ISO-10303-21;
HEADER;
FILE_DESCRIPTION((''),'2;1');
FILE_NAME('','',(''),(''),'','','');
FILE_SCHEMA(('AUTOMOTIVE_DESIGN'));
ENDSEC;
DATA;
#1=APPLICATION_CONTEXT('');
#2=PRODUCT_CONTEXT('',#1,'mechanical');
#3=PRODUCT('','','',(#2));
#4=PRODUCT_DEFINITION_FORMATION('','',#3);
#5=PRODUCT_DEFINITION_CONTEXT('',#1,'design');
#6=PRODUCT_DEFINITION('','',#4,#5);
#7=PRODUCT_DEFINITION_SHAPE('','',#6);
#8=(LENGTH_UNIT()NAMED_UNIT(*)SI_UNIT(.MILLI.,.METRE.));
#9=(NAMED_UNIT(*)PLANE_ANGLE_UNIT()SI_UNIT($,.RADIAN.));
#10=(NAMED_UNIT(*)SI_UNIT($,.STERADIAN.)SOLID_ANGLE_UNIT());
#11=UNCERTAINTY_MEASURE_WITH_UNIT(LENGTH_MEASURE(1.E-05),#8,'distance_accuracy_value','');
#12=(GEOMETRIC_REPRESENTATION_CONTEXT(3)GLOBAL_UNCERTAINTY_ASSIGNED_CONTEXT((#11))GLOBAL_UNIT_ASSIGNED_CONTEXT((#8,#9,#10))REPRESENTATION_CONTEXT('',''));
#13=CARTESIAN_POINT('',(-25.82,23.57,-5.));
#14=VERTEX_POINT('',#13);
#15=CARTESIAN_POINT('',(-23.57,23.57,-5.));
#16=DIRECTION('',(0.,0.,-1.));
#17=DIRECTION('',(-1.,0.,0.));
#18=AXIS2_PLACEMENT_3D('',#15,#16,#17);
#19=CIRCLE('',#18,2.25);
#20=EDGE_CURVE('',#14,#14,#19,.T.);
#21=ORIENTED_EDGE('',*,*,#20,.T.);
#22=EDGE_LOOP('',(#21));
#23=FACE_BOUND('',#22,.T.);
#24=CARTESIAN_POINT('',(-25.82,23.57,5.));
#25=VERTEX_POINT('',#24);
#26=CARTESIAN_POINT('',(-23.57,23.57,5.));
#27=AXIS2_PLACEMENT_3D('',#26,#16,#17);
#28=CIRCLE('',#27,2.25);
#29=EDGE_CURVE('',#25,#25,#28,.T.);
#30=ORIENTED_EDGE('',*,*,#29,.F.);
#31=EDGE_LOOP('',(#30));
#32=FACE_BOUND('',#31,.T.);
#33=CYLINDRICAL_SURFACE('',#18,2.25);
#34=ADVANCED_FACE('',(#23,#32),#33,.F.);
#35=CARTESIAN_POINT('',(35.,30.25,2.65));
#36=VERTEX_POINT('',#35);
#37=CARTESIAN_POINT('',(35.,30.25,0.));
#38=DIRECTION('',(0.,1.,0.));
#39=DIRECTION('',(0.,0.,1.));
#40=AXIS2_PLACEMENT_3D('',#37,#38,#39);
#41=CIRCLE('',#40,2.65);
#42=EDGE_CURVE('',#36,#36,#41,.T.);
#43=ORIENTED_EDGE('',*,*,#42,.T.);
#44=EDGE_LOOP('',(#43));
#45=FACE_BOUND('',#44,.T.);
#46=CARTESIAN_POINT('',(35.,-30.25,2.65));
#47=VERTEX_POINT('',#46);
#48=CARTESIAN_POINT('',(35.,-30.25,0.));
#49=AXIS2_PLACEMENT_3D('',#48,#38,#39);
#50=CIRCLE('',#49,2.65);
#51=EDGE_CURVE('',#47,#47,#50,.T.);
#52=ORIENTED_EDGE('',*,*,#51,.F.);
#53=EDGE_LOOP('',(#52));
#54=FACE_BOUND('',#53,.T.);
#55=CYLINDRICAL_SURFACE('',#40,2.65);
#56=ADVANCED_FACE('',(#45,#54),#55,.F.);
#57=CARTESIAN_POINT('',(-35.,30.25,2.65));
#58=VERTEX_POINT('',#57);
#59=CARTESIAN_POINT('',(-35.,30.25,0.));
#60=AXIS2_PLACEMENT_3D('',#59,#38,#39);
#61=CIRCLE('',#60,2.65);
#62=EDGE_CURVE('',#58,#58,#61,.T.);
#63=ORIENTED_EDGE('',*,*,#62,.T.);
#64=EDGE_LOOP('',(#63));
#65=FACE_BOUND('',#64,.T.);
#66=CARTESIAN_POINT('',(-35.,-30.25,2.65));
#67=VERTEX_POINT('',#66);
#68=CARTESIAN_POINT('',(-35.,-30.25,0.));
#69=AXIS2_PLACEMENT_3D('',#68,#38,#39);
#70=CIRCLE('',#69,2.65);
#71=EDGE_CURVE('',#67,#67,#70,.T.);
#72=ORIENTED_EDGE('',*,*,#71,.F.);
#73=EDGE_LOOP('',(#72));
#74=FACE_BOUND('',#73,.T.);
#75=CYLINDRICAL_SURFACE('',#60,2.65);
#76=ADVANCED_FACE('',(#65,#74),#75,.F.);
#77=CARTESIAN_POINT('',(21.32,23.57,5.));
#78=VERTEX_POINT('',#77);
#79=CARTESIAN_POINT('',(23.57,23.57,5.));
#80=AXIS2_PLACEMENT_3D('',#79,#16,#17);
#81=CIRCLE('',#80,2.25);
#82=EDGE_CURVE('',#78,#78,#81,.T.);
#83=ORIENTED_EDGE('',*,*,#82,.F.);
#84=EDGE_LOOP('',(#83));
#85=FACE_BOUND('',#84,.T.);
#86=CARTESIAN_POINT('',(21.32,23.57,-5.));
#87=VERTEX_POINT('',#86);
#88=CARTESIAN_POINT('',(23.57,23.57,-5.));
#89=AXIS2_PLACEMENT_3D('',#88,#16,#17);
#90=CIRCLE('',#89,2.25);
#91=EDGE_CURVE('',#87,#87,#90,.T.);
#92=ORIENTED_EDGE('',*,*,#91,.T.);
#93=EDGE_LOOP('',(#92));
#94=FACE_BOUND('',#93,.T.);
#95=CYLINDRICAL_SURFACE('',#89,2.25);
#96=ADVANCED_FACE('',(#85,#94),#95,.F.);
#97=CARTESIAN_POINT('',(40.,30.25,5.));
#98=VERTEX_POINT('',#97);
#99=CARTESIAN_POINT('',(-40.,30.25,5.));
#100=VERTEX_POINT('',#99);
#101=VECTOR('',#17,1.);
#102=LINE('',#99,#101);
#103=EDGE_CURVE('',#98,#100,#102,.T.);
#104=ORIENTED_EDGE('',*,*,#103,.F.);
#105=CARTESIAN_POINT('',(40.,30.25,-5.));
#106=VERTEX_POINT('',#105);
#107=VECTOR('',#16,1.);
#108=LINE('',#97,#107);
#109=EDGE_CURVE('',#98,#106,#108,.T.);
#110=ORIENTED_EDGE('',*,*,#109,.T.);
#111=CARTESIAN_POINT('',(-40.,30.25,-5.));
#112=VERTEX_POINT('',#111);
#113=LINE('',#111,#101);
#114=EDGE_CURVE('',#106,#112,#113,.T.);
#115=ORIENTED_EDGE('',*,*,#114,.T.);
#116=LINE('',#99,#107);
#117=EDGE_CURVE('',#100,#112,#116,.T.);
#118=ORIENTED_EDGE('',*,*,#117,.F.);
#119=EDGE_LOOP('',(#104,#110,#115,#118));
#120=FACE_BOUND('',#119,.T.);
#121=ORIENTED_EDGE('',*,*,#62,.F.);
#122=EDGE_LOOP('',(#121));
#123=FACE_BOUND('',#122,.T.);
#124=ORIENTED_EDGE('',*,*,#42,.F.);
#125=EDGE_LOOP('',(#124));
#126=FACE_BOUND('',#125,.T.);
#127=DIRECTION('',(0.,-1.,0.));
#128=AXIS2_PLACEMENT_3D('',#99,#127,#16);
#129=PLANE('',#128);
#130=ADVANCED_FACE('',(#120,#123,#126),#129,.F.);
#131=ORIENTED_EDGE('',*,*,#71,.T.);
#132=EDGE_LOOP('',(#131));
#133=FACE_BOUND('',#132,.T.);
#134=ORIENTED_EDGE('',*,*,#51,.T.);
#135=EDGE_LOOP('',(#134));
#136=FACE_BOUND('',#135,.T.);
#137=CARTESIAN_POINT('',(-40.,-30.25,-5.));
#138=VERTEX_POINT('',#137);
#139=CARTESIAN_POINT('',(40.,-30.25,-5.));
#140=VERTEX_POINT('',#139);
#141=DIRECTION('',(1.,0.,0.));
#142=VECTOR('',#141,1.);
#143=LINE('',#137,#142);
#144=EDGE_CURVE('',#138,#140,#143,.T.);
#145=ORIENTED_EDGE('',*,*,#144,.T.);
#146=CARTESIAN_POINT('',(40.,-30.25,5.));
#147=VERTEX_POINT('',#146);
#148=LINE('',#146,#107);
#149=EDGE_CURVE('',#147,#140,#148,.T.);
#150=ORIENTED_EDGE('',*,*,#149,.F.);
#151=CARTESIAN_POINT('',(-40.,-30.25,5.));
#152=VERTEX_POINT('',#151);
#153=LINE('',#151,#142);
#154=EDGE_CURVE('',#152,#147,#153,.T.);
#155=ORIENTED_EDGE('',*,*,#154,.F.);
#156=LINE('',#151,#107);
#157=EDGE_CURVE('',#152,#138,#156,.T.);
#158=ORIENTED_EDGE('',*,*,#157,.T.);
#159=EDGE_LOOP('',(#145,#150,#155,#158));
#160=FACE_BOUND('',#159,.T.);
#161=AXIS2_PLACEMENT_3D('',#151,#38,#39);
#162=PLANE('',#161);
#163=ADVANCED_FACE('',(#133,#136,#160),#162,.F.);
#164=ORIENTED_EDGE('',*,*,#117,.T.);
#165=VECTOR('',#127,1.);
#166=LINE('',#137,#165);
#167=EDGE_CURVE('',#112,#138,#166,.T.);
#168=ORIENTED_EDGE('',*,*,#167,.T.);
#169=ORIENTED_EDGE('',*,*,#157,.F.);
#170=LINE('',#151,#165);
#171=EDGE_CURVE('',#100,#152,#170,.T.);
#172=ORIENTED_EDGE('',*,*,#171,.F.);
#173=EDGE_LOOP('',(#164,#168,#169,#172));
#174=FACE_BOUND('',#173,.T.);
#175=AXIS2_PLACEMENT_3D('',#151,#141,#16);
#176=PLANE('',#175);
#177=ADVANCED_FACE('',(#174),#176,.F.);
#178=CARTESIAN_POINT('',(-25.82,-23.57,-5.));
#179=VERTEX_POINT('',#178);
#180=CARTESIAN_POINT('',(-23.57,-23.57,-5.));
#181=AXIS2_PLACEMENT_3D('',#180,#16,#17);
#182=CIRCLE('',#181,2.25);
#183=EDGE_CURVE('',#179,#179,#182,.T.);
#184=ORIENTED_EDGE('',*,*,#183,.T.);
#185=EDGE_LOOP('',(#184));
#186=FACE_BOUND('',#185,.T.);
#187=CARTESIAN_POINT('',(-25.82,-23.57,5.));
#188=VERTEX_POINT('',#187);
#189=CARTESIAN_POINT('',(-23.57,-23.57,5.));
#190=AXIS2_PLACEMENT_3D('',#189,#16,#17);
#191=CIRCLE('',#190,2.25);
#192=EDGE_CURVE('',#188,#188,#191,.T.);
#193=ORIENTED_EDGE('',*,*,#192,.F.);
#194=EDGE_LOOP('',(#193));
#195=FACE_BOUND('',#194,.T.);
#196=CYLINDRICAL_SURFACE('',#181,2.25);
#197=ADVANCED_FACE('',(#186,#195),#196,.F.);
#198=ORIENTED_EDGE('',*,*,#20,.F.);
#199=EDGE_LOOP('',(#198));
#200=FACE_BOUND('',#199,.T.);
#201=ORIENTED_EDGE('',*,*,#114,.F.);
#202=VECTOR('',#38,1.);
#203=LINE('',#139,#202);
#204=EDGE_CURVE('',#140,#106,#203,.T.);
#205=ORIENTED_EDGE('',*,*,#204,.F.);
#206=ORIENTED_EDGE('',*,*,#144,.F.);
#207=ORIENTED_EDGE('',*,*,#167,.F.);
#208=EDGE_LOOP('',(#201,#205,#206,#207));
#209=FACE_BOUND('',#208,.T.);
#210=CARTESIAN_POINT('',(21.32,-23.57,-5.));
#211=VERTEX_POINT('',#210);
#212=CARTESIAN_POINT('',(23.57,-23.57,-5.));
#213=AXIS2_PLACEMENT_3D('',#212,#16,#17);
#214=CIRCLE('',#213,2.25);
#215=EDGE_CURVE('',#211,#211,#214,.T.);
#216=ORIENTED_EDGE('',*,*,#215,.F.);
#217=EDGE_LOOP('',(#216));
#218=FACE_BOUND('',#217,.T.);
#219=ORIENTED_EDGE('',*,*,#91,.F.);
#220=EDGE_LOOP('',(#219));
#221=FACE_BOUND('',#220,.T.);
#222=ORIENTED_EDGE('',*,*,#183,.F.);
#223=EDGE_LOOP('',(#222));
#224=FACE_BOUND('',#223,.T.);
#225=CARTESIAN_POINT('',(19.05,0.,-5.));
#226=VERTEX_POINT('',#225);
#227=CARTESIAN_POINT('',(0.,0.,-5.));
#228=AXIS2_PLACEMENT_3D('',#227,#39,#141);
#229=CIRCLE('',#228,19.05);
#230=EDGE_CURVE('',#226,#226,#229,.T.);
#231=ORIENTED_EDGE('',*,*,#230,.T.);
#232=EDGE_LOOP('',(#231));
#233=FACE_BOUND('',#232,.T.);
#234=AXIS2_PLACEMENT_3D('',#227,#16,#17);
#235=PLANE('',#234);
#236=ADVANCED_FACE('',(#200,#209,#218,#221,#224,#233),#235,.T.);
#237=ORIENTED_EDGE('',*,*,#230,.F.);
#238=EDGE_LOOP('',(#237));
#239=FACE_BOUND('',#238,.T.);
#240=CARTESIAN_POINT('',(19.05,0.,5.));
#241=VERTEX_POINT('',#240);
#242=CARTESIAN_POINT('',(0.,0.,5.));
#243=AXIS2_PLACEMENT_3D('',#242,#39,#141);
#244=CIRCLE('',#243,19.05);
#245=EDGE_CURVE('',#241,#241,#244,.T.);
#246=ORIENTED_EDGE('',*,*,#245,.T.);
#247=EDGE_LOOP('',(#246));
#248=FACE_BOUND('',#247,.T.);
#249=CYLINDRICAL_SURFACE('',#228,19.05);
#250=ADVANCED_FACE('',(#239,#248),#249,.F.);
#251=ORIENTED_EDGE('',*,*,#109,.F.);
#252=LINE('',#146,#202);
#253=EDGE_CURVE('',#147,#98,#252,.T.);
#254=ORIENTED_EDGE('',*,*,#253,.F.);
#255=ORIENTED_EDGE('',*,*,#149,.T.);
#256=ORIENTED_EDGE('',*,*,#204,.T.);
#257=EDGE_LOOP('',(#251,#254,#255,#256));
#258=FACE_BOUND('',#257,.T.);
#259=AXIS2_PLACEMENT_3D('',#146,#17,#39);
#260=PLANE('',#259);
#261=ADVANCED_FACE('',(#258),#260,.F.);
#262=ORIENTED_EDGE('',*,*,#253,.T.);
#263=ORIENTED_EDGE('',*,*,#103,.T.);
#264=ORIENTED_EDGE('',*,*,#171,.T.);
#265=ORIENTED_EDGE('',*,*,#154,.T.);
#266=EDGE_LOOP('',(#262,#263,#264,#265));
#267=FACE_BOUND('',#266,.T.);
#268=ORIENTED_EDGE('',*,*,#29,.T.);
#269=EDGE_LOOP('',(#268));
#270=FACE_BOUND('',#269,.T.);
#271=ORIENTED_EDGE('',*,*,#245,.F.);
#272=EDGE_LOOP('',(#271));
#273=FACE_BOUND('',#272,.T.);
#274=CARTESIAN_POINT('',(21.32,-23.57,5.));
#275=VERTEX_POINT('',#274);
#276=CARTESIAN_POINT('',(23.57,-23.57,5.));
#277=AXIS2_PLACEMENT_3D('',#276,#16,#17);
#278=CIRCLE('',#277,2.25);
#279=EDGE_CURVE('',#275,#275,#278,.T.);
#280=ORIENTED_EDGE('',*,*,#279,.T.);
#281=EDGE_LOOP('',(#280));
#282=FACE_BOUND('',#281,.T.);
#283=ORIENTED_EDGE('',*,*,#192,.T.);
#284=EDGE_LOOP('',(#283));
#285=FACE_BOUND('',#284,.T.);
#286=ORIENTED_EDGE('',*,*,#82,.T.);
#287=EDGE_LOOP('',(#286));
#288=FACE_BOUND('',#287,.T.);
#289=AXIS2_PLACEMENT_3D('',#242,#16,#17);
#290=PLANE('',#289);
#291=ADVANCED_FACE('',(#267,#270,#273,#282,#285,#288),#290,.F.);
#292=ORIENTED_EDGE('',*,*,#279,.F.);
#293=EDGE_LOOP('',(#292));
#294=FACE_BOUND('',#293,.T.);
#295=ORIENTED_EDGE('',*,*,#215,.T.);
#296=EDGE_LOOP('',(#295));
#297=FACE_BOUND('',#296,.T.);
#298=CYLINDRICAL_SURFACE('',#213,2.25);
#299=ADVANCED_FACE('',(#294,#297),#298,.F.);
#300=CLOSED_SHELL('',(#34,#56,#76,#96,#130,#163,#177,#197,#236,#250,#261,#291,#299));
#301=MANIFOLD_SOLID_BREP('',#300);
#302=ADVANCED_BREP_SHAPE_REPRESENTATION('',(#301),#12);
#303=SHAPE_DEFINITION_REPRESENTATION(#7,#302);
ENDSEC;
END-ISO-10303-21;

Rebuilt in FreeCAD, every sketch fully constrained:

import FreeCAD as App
import Part
import Sketcher
Q = App.Units.Quantity

doc = App.newDocument("Part")
body = doc.addObject("PartDesign::Body", "Body")

# Sketch on XY plane
sketch1 = body.newObject("Sketcher::SketchObject", "Sketch")
sketch1.AttachmentSupport = (doc.getObject("XY_Plane"), [""])
sketch1.MapMode = "FlatFace"
sketch1.addGeometry(Part.LineSegment(App.Vector(-40, 30, 0), App.Vector(-40, -30, 0)), False)
sketch1.addGeometry(Part.LineSegment(App.Vector(-40, -30, 0), App.Vector(40, -30, 0)), False)
sketch1.addGeometry(Part.LineSegment(App.Vector(40, -30, 0), App.Vector(40, 30, 0)), False)
sketch1.addGeometry(Part.LineSegment(App.Vector(40, 30, 0), App.Vector(-40, 30, 0)), False)
sketch1.addConstraint(Sketcher.Constraint("Coincident", 0, 2, 1, 1))
sketch1.addConstraint(Sketcher.Constraint("Coincident", 1, 2, 2, 1))
sketch1.addConstraint(Sketcher.Constraint("Coincident", 2, 2, 3, 1))
sketch1.addConstraint(Sketcher.Constraint("Coincident", 3, 2, 0, 1))
sketch1.addConstraint(Sketcher.Constraint("Vertical", 0))
sketch1.addConstraint(Sketcher.Constraint("Horizontal", 1))
sketch1.addConstraint(Sketcher.Constraint("Vertical", 2))
sketch1.addConstraint(Sketcher.Constraint("Horizontal", 3))
sketch1.addConstraint(Sketcher.Constraint("Symmetric", 0, 2, 2, 2, -1, 1))
sketch1.addConstraint(Sketcher.Constraint("DistanceX", 1, 1, 1, 2, Q("80 mm")))
sketch1.addConstraint(Sketcher.Constraint("DistanceY", 0, 2, 0, 1, Q("60.5 mm")))
pad1 = body.newObject("PartDesign::Pad", "Pad")
pad1.Profile = sketch1
pad1.Length = 10
pad1.Midplane = True

# Sketch on XY plane
sketch2 = body.newObject("Sketcher::SketchObject", "Sketch001")
sketch2.AttachmentSupport = (doc.getObject("XY_Plane"), [""])
sketch2.MapMode = "FlatFace"
sketch2.AttachmentOffset = App.Placement(App.Vector(0, 0, 5), App.Rotation())
sketch2.addGeometry(Part.Circle(App.Vector(0, 0, 0), App.Vector(0, 0, 1), 19), False)
sketch2.addConstraint(Sketcher.Constraint("Coincident", 0, 3, -1, 1))
sketch2.addConstraint(Sketcher.Constraint("Diameter", 0, Q("38.1 mm")))
pocket1 = body.newObject("PartDesign::Pocket", "Pocket")
pocket1.Profile = sketch2
pocket1.Type = "ThroughAll"

# Sketch on XY plane
sketch3 = body.newObject("Sketcher::SketchObject", "Sketch002")
sketch3.AttachmentSupport = (doc.getObject("XY_Plane"), [""])
sketch3.MapMode = "FlatFace"
sketch3.AttachmentOffset = App.Placement(App.Vector(0, 0, -5), App.Rotation())
sketch3.addGeometry(Part.Circle(App.Vector(-23.6, 23.6, 0), App.Vector(0, 0, 1), 2.2), False)
sketch3.addGeometry(Part.Circle(App.Vector(23.6, -23.6, 0), App.Vector(0, 0, 1), 2.2), False)
sketch3.addGeometry(Part.Circle(App.Vector(23.6, 23.6, 0), App.Vector(0, 0, 1), 2.2), False)
sketch3.addGeometry(Part.Circle(App.Vector(-23.6, -23.6, 0), App.Vector(0, 0, 1), 2.2), False)
sketch3.addConstraint(Sketcher.Constraint("Equal", 0, 1))
sketch3.addConstraint(Sketcher.Constraint("Equal", 1, 2))
sketch3.addConstraint(Sketcher.Constraint("Equal", 2, 3))
sketch3.addConstraint(Sketcher.Constraint("Symmetric", 0, 3, 1, 3, -1, 1))
sketch3.addConstraint(Sketcher.Constraint("Symmetric", 2, 3, 3, 3, -1, 1))
sketch3.addConstraint(Sketcher.Constraint("Symmetric", 0, 3, 2, 3, -2))
sketch3.addConstraint(Sketcher.Constraint("Diameter", 0, Q("4.5 mm")))
sketch3.addConstraint(Sketcher.Constraint("DistanceX", 0, 3, -1, 1, Q("23.57 mm")))
sketch3.addConstraint(Sketcher.Constraint("DistanceY", -1, 1, 0, 3, Q("23.57 mm")))
doc.recompute()
hole = body.newObject("PartDesign::Hole", "Hole")
hole.Profile = sketch3
hole.ThreadType = "None"
hole.Diameter = 4.5
hole.DepthType = "ThroughAll"
hole.Reversed = True

# Sketch on XZ plane
sketch4 = body.newObject("Sketcher::SketchObject", "Sketch003")
sketch4.AttachmentSupport = (doc.getObject("XZ_Plane"), [""])
sketch4.MapMode = "FlatFace"
sketch4.AttachmentOffset = App.Placement(App.Vector(0, 0, -30.25), App.Rotation())
sketch4.addGeometry(Part.Circle(App.Vector(-35, 0, 0), App.Vector(0, 0, 1), 2.6), False)
sketch4.addGeometry(Part.Circle(App.Vector(35, 0, 0), App.Vector(0, 0, 1), 2.6), False)
sketch4.addConstraint(Sketcher.Constraint("Equal", 0, 1))
sketch4.addConstraint(Sketcher.Constraint("Symmetric", 0, 3, 1, 3, -1, 1))
sketch4.addConstraint(Sketcher.Constraint("PointOnObject", 0, 3, -1))
sketch4.addConstraint(Sketcher.Constraint("Diameter", 0, Q("5.3 mm")))
sketch4.addConstraint(Sketcher.Constraint("DistanceX", 0, 3, -1, 1, Q("35 mm")))
doc.recompute()
hole2 = body.newObject("PartDesign::Hole", "Hole001")
hole2.Profile = sketch4
hole2.ThreadType = "None"
hole2.Diameter = 5.3
hole2.DepthType = "ThroughAll"
hole2.Reversed = True

doc.recompute()
